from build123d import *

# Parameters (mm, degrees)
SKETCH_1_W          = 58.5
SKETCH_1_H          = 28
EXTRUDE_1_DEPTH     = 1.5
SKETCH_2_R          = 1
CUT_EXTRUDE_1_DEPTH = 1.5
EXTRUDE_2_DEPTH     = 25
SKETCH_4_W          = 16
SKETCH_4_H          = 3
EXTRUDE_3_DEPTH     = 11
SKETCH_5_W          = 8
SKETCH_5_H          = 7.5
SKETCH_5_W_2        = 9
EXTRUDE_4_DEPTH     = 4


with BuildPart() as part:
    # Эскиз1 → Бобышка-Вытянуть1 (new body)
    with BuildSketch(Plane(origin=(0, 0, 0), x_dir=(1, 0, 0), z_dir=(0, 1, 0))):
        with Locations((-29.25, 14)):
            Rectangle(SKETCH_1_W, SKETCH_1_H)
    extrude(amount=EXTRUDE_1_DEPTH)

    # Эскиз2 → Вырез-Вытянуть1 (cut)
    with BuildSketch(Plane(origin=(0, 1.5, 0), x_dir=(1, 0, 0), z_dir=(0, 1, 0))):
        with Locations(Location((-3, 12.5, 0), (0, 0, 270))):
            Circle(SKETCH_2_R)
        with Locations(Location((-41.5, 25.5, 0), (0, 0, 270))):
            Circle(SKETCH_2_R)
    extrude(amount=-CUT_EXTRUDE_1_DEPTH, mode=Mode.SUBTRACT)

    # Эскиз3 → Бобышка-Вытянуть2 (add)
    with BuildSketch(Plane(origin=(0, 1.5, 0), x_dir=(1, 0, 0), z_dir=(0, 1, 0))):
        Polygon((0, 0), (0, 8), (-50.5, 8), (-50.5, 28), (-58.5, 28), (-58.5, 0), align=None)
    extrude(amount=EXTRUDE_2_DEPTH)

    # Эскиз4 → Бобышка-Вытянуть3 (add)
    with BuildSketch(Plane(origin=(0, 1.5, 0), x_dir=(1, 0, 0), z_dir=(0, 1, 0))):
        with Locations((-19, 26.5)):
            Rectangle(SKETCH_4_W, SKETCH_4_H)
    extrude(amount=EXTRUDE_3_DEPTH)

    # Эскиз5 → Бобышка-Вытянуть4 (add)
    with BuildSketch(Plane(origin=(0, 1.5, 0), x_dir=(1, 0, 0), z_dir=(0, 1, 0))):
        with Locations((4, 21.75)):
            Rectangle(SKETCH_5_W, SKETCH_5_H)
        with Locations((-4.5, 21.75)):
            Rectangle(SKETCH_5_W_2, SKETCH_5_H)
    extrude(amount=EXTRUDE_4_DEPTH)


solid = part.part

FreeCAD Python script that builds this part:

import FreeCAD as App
import Part
import Sketcher
from FreeCAD import Vector
Q = App.Units.Quantity


def add_polygon(sketch, points):
    """Adds a closed chain of lines whose ends are joined by coincident constraints."""
    first, n = sketch.GeometryCount, len(points)
    for a, b in zip(points, points[1:] + points[:1]):
        sketch.addGeometry(Part.LineSegment(App.Vector(*a, 0), App.Vector(*b, 0)), False)
    for i in range(n):
        sketch.addConstraint(Sketcher.Constraint("Coincident", first + i, 2, first + (i + 1) % n, 1))

doc = App.newDocument("Part")
body = doc.addObject("PartDesign::Body", "Body")

# Sketch on XZ plane
sketch1 = body.newObject("Sketcher::SketchObject", "Sketch")
sketch1.AttachmentSupport = (doc.getObject("XZ_Plane"), [""])
sketch1.MapMode = "FlatFace"
add_polygon(sketch1, [(-58, -28), (-58, 0), (0, 0), (0, -28)])  # lines 0-3
sketch1.addConstraint(Sketcher.Constraint("Vertical", 0))
sketch1.addConstraint(Sketcher.Constraint("Horizontal", 1))
sketch1.addConstraint(Sketcher.Constraint("Vertical", 2))
sketch1.addConstraint(Sketcher.Constraint("Horizontal", 3))
sketch1.addConstraint(Sketcher.Constraint("Coincident", 1, 2, -1, 1))
sketch1.addConstraint(Sketcher.Constraint("DistanceY", 0, 1, 0, 2, Q("28 mm")))
sketch1.addConstraint(Sketcher.Constraint("DistanceX", 1, 1, 1, 2, Q("58.5 mm")))
pad1 = body.newObject("PartDesign::Pad", "Pad")
pad1.Profile = sketch1
pad1.Length = 1.5
pad1.Reversed = True

# Sketch on XZ plane
sketch2 = body.newObject("Sketcher::SketchObject", "Sketch001")
sketch2.AttachmentSupport = (doc.getObject("XZ_Plane"), [""])
sketch2.MapMode = "FlatFace"
sketch2.AttachmentOffset = App.Placement(Vector(0, 0, -1.5), App.Rotation())
sketch2.addGeometry(Part.Circle(Vector(-3, -12.5, 0), Vector(0, 0, 1), 1), False)
sketch2.addGeometry(Part.Circle(Vector(-41.5, -25.5, 0), Vector(0, 0, 1), 1), False)
sketch2.addConstraint(Sketcher.Constraint("Equal", 0, 1))
sketch2.addConstraint(Sketcher.Constraint("Diameter", 0, Q("2 mm")))
sketch2.addConstraint(Sketcher.Constraint("DistanceX", 0, 3, -1, 1, Q("3 mm")))
sketch2.addConstraint(Sketcher.Constraint("DistanceY", 1, 3, 0, 3, Q("13 mm")))
sketch2.addConstraint(Sketcher.Constraint("DistanceY", 0, 3, -1, 1, Q("12.5 mm")))
sketch2.addConstraint(Sketcher.Constraint("DistanceX", 1, 3, -1, 1, Q("41.5 mm")))
pocket1 = body.newObject("PartDesign::Pocket", "Pocket")
pocket1.Profile = sketch2
pocket1.Length = 1.5
pocket1.Reversed = True

# Sketch on XZ plane
sketch3 = body.newObject("Sketcher::SketchObject", "Sketch002")
sketch3.AttachmentSupport = (doc.getObject("XZ_Plane"), [""])
sketch3.MapMode = "FlatFace"
sketch3.AttachmentOffset = App.Placement(Vector(0, 0, -1.5), App.Rotation())
add_polygon(sketch3, [(0, 0), (0, -8), (-50, -8), (-50, -28), (-58, -28), (-58, 0)])  # lines 0-5
sketch3.addConstraint(Sketcher.Constraint("Vertical", 0))
sketch3.addConstraint(Sketcher.Constraint("Horizontal", 1))
sketch3.addConstraint(Sketcher.Constraint("Vertical", 2))
sketch3.addConstraint(Sketcher.Constraint("Horizontal", 3))
sketch3.addConstraint(Sketcher.Constraint("Vertical", 4))
sketch3.addConstraint(Sketcher.Constraint("Horizontal", 5))
sketch3.addConstraint(Sketcher.Constraint("Coincident", 5, 2, -1, 1))
sketch3.addConstraint(Sketcher.Constraint("Equal", 3, 0))
sketch3.addConstraint(Sketcher.Constraint("DistanceX", 3, 2, 3, 1, Q("8 mm")))
sketch3.addConstraint(Sketcher.Constraint("DistanceY", 2, 2, 2, 1, Q("20 mm")))
sketch3.addConstraint(Sketcher.Constraint("DistanceX", 1, 2, 1, 1, Q("50.5 mm")))
pad2 = body.newObject("PartDesign::Pad", "Pad001")
pad2.Profile = sketch3
pad2.Length = 25
pad2.Reversed = True

# Sketch on XZ plane
sketch4 = body.newObject("Sketcher::SketchObject", "Sketch003")
sketch4.AttachmentSupport = (doc.getObject("XZ_Plane"), [""])
sketch4.MapMode = "FlatFace"
sketch4.AttachmentOffset = App.Placement(Vector(0, 0, -1.5), App.Rotation())
add_polygon(sketch4, [(-27, -28), (-27, -25), (-11, -25), (-11, -28)])  # lines 0-3
sketch4.addConstraint(Sketcher.Constraint("Vertical", 0))
sketch4.addConstraint(Sketcher.Constraint("Horizontal", 1))
sketch4.addConstraint(Sketcher.Constraint("Vertical", 2))
sketch4.addConstraint(Sketcher.Constraint("Horizontal", 3))
sketch4.addConstraint(Sketcher.Constraint("DistanceX", 1, 1, 1, 2, Q("16 mm")))
sketch4.addConstraint(Sketcher.Constraint("DistanceY", 0, 1, 0, 2, Q("3 mm")))
sketch4.addConstraint(Sketcher.Constraint("DistanceX", 0, 2, -1, 1, Q("27 mm")))
sketch4.addConstraint(Sketcher.Constraint("DistanceY", 0, 2, -1, 1, Q("25 mm")))
pad3 = body.newObject("PartDesign::Pad", "Pad002")
pad3.Profile = sketch4
pad3.Length = 11
pad3.Reversed = True

# Sketch on XZ plane
sketch5 = body.newObject("Sketcher::SketchObject", "Sketch004")
sketch5.AttachmentSupport = (doc.getObject("XZ_Plane"), [""])
sketch5.MapMode = "FlatFace"
sketch5.AttachmentOffset = App.Placement(Vector(0, 0, -1.5), App.Rotation())
add_polygon(sketch5, [(8, -18), (8, -26), (-9, -26), (-9, -18)])  # lines 0-3
sketch5.addConstraint(Sketcher.Constraint("Vertical", 0))
sketch5.addConstraint(Sketcher.Constraint("Horizontal", 1))
sketch5.addConstraint(Sketcher.Constraint("Vertical", 2))
sketch5.addConstraint(Sketcher.Constraint("Horizontal", 3))
sketch5.addConstraint(Sketcher.Constraint("DistanceX", 1, 2, 1, 1, Q("17 mm")))
sketch5.addConstraint(Sketcher.Constraint("DistanceY", 0, 2, 0, 1, Q("7.5 mm")))
sketch5.addConstraint(Sketcher.Constraint("DistanceX", -1, 1, 0, 2, Q("8 mm")))
sketch5.addConstraint(Sketcher.Constraint("DistanceY", 2, 2, -1, 1, Q("18 mm")))
pad4 = body.newObject("PartDesign::Pad", "Pad003")
pad4.Profile = sketch5
pad4.Length = 4
pad4.Reversed = True

doc.recompute()
